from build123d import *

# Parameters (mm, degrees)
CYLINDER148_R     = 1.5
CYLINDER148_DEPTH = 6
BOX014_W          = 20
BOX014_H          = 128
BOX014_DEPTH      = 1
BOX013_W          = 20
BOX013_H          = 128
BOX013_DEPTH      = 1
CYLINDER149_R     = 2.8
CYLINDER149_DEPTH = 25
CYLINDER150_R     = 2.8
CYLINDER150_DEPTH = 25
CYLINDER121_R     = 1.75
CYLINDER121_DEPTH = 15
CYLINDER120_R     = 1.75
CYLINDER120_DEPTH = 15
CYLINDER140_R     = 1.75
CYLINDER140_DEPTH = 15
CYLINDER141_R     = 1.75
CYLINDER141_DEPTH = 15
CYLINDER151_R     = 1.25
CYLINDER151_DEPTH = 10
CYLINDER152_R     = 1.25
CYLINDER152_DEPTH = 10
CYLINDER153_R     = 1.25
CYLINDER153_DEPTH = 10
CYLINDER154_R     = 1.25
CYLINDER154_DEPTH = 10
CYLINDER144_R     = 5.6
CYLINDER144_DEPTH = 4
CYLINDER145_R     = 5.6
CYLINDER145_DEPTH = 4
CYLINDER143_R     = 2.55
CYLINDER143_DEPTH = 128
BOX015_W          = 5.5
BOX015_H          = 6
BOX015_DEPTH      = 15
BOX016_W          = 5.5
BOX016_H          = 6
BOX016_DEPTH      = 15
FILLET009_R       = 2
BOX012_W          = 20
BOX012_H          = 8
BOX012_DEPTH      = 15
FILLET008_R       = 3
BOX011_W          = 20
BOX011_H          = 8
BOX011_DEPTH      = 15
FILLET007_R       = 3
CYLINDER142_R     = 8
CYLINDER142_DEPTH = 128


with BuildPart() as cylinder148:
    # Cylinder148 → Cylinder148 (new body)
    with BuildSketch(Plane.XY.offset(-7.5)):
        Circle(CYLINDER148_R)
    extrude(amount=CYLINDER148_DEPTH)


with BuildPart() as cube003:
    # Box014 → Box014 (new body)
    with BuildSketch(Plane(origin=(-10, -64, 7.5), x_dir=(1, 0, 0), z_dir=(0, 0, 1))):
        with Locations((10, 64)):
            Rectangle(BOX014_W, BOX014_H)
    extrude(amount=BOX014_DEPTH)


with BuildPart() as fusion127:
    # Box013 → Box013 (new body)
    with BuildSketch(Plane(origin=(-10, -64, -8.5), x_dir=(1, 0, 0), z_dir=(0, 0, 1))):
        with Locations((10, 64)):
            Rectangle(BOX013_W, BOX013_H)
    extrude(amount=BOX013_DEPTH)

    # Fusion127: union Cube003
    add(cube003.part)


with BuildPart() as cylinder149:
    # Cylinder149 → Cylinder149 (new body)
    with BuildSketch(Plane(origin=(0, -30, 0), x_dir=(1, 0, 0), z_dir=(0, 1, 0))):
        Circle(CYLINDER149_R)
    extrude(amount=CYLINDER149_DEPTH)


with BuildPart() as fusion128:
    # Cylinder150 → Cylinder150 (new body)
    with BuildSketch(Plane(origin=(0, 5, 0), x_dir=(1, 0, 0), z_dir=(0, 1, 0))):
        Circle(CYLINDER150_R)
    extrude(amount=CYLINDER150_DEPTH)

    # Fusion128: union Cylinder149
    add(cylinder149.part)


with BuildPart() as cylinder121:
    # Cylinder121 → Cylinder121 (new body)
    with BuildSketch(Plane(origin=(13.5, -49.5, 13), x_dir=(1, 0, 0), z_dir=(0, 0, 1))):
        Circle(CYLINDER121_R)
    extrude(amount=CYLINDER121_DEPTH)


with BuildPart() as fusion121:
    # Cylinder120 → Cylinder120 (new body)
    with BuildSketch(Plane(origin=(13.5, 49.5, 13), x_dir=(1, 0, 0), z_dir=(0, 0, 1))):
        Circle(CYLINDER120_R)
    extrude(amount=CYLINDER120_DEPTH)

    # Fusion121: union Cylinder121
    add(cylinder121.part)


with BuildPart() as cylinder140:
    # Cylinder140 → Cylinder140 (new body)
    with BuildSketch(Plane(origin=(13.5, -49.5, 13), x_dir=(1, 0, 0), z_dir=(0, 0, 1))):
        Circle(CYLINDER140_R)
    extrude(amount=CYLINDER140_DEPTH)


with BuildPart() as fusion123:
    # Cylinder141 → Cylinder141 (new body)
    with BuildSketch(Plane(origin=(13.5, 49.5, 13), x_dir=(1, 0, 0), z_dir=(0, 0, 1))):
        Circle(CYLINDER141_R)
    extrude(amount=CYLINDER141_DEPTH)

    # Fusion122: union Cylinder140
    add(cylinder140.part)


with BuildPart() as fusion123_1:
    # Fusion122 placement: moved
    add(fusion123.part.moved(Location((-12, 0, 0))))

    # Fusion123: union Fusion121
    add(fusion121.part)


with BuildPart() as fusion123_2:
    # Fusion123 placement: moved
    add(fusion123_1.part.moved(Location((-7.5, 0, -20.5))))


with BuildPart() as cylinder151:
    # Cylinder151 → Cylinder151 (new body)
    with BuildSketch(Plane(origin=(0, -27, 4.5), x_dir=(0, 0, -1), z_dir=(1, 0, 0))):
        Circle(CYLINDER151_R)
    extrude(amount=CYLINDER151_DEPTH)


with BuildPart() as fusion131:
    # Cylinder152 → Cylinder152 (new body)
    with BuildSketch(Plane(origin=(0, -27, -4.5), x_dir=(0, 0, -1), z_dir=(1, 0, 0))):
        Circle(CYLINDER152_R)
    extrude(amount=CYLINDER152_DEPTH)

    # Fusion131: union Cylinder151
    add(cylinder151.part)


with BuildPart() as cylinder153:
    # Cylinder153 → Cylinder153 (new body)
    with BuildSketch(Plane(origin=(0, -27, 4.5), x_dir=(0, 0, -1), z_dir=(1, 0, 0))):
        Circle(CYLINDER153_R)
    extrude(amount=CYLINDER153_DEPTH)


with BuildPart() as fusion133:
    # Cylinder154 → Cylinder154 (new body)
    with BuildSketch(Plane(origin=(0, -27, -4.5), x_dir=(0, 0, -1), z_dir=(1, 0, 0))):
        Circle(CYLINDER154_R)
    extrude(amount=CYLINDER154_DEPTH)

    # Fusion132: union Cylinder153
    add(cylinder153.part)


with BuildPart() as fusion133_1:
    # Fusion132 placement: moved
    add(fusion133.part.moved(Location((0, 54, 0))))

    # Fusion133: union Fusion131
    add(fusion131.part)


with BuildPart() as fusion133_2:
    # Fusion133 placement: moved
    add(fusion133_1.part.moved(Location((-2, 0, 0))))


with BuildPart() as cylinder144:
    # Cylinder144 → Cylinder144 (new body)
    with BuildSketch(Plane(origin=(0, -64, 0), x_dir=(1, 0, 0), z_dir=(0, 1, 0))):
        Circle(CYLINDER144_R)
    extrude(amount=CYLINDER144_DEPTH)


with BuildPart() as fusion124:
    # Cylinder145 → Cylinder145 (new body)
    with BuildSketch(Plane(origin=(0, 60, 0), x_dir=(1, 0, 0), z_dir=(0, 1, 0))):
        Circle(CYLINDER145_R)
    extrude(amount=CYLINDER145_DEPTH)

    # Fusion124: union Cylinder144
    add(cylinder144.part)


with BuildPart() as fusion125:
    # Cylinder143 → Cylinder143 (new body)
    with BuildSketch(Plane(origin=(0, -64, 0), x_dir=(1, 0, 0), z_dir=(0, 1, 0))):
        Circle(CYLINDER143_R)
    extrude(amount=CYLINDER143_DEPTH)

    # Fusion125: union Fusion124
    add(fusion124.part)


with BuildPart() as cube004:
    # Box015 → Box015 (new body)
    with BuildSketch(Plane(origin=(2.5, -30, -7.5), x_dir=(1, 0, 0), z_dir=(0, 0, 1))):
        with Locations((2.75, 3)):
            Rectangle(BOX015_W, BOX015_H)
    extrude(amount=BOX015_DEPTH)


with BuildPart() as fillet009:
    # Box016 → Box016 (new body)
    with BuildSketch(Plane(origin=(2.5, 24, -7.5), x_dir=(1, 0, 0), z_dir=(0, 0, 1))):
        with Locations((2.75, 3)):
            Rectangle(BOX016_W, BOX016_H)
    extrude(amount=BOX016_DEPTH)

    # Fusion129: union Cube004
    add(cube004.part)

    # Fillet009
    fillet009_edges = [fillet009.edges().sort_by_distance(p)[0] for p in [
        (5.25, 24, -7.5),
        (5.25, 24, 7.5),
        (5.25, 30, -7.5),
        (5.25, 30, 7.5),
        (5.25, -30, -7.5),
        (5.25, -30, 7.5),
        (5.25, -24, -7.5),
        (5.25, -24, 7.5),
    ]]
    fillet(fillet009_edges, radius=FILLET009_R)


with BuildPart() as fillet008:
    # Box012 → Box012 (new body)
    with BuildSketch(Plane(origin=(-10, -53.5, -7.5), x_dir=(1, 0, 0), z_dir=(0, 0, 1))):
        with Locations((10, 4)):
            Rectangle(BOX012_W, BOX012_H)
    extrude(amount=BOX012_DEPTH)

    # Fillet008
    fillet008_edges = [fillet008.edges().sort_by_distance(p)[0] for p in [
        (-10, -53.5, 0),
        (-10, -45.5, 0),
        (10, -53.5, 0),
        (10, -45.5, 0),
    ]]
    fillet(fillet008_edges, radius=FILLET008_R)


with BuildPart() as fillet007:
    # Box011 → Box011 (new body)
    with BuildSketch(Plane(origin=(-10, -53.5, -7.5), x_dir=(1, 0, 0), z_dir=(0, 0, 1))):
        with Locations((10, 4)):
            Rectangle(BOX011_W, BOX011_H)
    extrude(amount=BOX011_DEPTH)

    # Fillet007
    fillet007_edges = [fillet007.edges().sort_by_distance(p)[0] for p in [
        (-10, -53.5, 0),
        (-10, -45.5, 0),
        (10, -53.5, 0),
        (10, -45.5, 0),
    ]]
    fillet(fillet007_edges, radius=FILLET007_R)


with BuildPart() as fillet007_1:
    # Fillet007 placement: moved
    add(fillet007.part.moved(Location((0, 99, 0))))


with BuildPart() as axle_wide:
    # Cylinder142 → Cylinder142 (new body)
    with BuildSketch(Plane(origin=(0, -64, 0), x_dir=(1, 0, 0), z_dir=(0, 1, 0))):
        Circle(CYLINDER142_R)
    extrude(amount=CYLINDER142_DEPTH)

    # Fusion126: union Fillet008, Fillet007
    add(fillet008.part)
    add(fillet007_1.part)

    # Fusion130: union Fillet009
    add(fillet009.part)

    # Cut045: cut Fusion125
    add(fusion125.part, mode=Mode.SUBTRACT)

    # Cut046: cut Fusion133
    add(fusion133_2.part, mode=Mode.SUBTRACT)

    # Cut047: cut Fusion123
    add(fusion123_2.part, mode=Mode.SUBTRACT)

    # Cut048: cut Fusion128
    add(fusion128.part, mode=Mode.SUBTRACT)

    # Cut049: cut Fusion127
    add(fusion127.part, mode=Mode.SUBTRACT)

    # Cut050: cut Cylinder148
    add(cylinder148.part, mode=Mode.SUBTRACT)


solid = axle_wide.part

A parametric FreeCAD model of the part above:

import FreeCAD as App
import Part
import Sketcher


def edges_at(feature, points):
    """Names of the edges that pass closest to the given points."""
    edges = feature.Shape.Edges
    near = lambda p: min(range(len(edges)), key=lambda i: edges[i].distToShape(Part.Vertex(*p))[0])
    return sorted({f"Edge{near(p) + 1}" for p in points})

doc = App.newDocument("Part")
body = doc.addObject("PartDesign::Body", "Body")

# Sketch on XY plane
sketch1 = doc.addObject("Sketcher::SketchObject", "Sketch")
body.addObject(sketch1)
sketch1.AttachmentSupport = (doc.XY_Plane, [""])
sketch1.MapMode = "FlatFace"
sketch1.AttachmentOffset = App.Placement(App.Vector(0, 0, -7.5), App.Rotation())
sketch1.addGeometry(Part.Circle(App.Vector(0, 0, 0), App.Vector(0, 0, 1), 1.5), False)
sketch1.addConstraint(Sketcher.Constraint("Coincident", 0, 3, -1, 1))
sketch1.addConstraint(Sketcher.Constraint("Diameter", 0, 3.0))
pad1 = doc.addObject("PartDesign::Pad", "Pad")
body.addObject(pad1)
pad1.Profile = sketch1
pad1.Length = 6
body2 = doc.addObject("PartDesign::Body", "Body001")

# Sketch on XY plane
sketch2 = doc.addObject("Sketcher::SketchObject", "Sketch001")
body2.addObject(sketch2)
sketch2.AttachmentSupport = (doc.getObject("XY_Plane001"), [""])
sketch2.MapMode = "FlatFace"
sketch2.AttachmentOffset = App.Placement(App.Vector(0, 0, 7.5), App.Rotation())
sketch2.addGeometry(Part.LineSegment(App.Vector(-10, 64, 0), App.Vector(-10, -64, 0)), False)
sketch2.addGeometry(Part.LineSegment(App.Vector(-10, -64, 0), App.Vector(10, -64, 0)), False)
sketch2.addGeometry(Part.LineSegment(App.Vector(10, -64, 0), App.Vector(10, 64, 0)), False)
sketch2.addGeometry(Part.LineSegment(App.Vector(10, 64, 0), App.Vector(-10, 64, 0)), False)
sketch2.addConstraint(Sketcher.Constraint("Coincident", 0, 2, 1, 1))
sketch2.addConstraint(Sketcher.Constraint("Coincident", 1, 2, 2, 1))
sketch2.addConstraint(Sketcher.Constraint("Coincident", 2, 2, 3, 1))
sketch2.addConstraint(Sketcher.Constraint("Coincident", 3, 2, 0, 1))
sketch2.addConstraint(Sketcher.Constraint("Vertical", 0))
sketch2.addConstraint(Sketcher.Constraint("Horizontal", 1))
sketch2.addConstraint(Sketcher.Constraint("Vertical", 2))
sketch2.addConstraint(Sketcher.Constraint("Horizontal", 3))
sketch2.addConstraint(Sketcher.Constraint("Symmetric", 0, 2, 2, 2, -1, 1))
sketch2.addConstraint(Sketcher.Constraint("DistanceX", 1, 1, 1, 2, 20.0))
sketch2.addConstraint(Sketcher.Constraint("DistanceY", 0, 2, 0, 1, 128.0))
pad2 = doc.addObject("PartDesign::Pad", "Pad001")
body2.addObject(pad2)
pad2.Profile = sketch2
pad2.Length = 1
body3 = doc.addObject("PartDesign::Body", "Body002")
body3.AllowCompound = True

# Sketch on XY plane
sketch3 = doc.addObject("Sketcher::SketchObject", "Sketch002")
body3.addObject(sketch3)
sketch3.AttachmentSupport = (doc.getObject("XY_Plane002"), [""])
sketch3.MapMode = "FlatFace"
sketch3.AttachmentOffset = App.Placement(App.Vector(0, 0, -8.5), App.Rotation())
sketch3.addGeometry(Part.LineSegment(App.Vector(-10, 64, 0), App.Vector(-10, -64, 0)), False)
sketch3.addGeometry(Part.LineSegment(App.Vector(-10, -64, 0), App.Vector(10, -64, 0)), False)
sketch3.addGeometry(Part.LineSegment(App.Vector(10, -64, 0), App.Vector(10, 64, 0)), False)
sketch3.addGeometry(Part.LineSegment(App.Vector(10, 64, 0), App.Vector(-10, 64, 0)), False)
sketch3.addConstraint(Sketcher.Constraint("Coincident", 0, 2, 1, 1))
sketch3.addConstraint(Sketcher.Constraint("Coincident", 1, 2, 2, 1))
sketch3.addConstraint(Sketcher.Constraint("Coincident", 2, 2, 3, 1))
sketch3.addConstraint(Sketcher.Constraint("Coincident", 3, 2, 0, 1))
sketch3.addConstraint(Sketcher.Constraint("Vertical", 0))
sketch3.addConstraint(Sketcher.Constraint("Horizontal", 1))
sketch3.addConstraint(Sketcher.Constraint("Vertical", 2))
sketch3.addConstraint(Sketcher.Constraint("Horizontal", 3))
sketch3.addConstraint(Sketcher.Constraint("Symmetric", 0, 2, 2, 2, -1, 1))
sketch3.addConstraint(Sketcher.Constraint("DistanceX", 1, 1, 1, 2, 20.0))
sketch3.addConstraint(Sketcher.Constraint("DistanceY", 0, 2, 0, 1, 128.0))
pad3 = doc.addObject("PartDesign::Pad", "Pad002")
body3.addObject(pad3)
pad3.Profile = sketch3
pad3.Length = 1
doc.recompute()

boolean = doc.addObject("PartDesign::Boolean", "Boolean")
body3.addObject(boolean)
boolean.Type = "Fuse"
boolean.addObjects([body2])
body4 = doc.addObject("PartDesign::Body", "Body003")

# Sketch on XZ plane
sketch4 = doc.addObject("Sketcher::SketchObject", "Sketch003")
body4.addObject(sketch4)
sketch4.AttachmentSupport = (doc.getObject("XZ_Plane003"), [""])
sketch4.MapMode = "FlatFace"
sketch4.AttachmentOffset = App.Placement(App.Vector(0, 0, 30), App.Rotation())
sketch4.addGeometry(Part.Circle(App.Vector(0, 0, 0), App.Vector(0, 0, 1), 2.8), False)
sketch4.addConstraint(Sketcher.Constraint("Coincident", 0, 3, -1, 1))
sketch4.addConstraint(Sketcher.Constraint("Diameter", 0, 5.6))
pad4 = doc.addObject("PartDesign::Pad", "Pad003")
body4.addObject(pad4)
pad4.Profile = sketch4
pad4.Length = 25
pad4.Reversed = True
body5 = doc.addObject("PartDesign::Body", "Body004")
body5.AllowCompound = True

# Sketch on XZ plane
sketch5 = doc.addObject("Sketcher::SketchObject", "Sketch004")
body5.addObject(sketch5)
sketch5.AttachmentSupport = (doc.getObject("XZ_Plane004"), [""])
sketch5.MapMode = "FlatFace"
sketch5.AttachmentOffset = App.Placement(App.Vector(0, 0, -5), App.Rotation())
sketch5.addGeometry(Part.Circle(App.Vector(0, 0, 0), App.Vector(0, 0, 1), 2.8), False)
sketch5.addConstraint(Sketcher.Constraint("Coincident", 0, 3, -1, 1))
sketch5.addConstraint(Sketcher.Constraint("Diameter", 0, 5.6))
pad5 = doc.addObject("PartDesign::Pad", "Pad004")
body5.addObject(pad5)
pad5.Profile = sketch5
pad5.Length = 25
pad5.Reversed = True
doc.recompute()

boolean2 = doc.addObject("PartDesign::Boolean", "Boolean001")
body5.addObject(boolean2)
boolean2.Type = "Fuse"
boolean2.addObjects([body4])
body6 = doc.addObject("PartDesign::Body", "Body005")

# Sketch on XY plane
sketch6 = doc.addObject("Sketcher::SketchObject", "Sketch005")
body6.addObject(sketch6)
sketch6.AttachmentSupport = (doc.getObject("XY_Plane005"), [""])
sketch6.MapMode = "FlatFace"
sketch6.AttachmentOffset = App.Placement(App.Vector(0, 0, 13), App.Rotation())
sketch6.addGeometry(Part.Circle(App.Vector(13.5, -49.5, 0), App.Vector(0, 0, 1), 1.75), False)
sketch6.addConstraint(Sketcher.Constraint("Diameter", 0, 3.5))
sketch6.addConstraint(Sketcher.Constraint("DistanceX", -1, 1, 0, 3, 13.5))
sketch6.addConstraint(Sketcher.Constraint("DistanceY", 0, 3, -1, 1, 49.5))
pad6 = doc.addObject("PartDesign::Pad", "Pad005")
body6.addObject(pad6)
pad6.Profile = sketch6
pad6.Length = 15
body7 = doc.addObject("PartDesign::Body", "Body006")
body7.AllowCompound = True

# Sketch on XY plane
sketch7 = doc.addObject("Sketcher::SketchObject", "Sketch006")
body7.addObject(sketch7)
sketch7.AttachmentSupport = (doc.getObject("XY_Plane006"), [""])
sketch7.MapMode = "FlatFace"
sketch7.AttachmentOffset = App.Placement(App.Vector(0, 0, 13), App.Rotation())
sketch7.addGeometry(Part.Circle(App.Vector(13.5, 49.5, 0), App.Vector(0, 0, 1), 1.75), False)
sketch7.addConstraint(Sketcher.Constraint("Diameter", 0, 3.5))
sketch7.addConstraint(Sketcher.Constraint("DistanceX", -1, 1, 0, 3, 13.5))
sketch7.addConstraint(Sketcher.Constraint("DistanceY", -1, 1, 0, 3, 49.5))
pad7 = doc.addObject("PartDesign::Pad", "Pad006")
body7.addObject(pad7)
pad7.Profile = sketch7
pad7.Length = 15
doc.recompute()

boolean3 = doc.addObject("PartDesign::Boolean", "Boolean002")
body7.addObject(boolean3)
boolean3.Type = "Fuse"
boolean3.addObjects([body6])
body8 = doc.addObject("PartDesign::Body", "Body007")

# Sketch on XY plane
sketch8 = doc.addObject("Sketcher::SketchObject", "Sketch007")
body8.addObject(sketch8)
sketch8.AttachmentSupport = (doc.getObject("XY_Plane007"), [""])
sketch8.MapMode = "FlatFace"
sketch8.AttachmentOffset = App.Placement(App.Vector(0, 0, 13), App.Rotation())
sketch8.addGeometry(Part.Circle(App.Vector(13.5, -49.5, 0), App.Vector(0, 0, 1), 1.75), False)
sketch8.addConstraint(Sketcher.Constraint("Diameter", 0, 3.5))
sketch8.addConstraint(Sketcher.Constraint("DistanceX", -1, 1, 0, 3, 13.5))
sketch8.addConstraint(Sketcher.Constraint("DistanceY", 0, 3, -1, 1, 49.5))
pad8 = doc.addObject("PartDesign::Pad", "Pad007")
body8.addObject(pad8)
pad8.Profile = sketch8
pad8.Length = 15
body9 = doc.addObject("PartDesign::Body", "Body008")
body9.AllowCompound = True

# Sketch on XY plane
sketch9 = doc.addObject("Sketcher::SketchObject", "Sketch008")
body9.addObject(sketch9)
sketch9.AttachmentSupport = (doc.getObject("XY_Plane008"), [""])
sketch9.MapMode = "FlatFace"
sketch9.AttachmentOffset = App.Placement(App.Vector(0, 0, 13), App.Rotation())
sketch9.addGeometry(Part.Circle(App.Vector(13.5, 49.5, 0), App.Vector(0, 0, 1), 1.75), False)
sketch9.addConstraint(Sketcher.Constraint("Diameter", 0, 3.5))
sketch9.addConstraint(Sketcher.Constraint("DistanceX", -1, 1, 0, 3, 13.5))
sketch9.addConstraint(Sketcher.Constraint("DistanceY", -1, 1, 0, 3, 49.5))
pad9 = doc.addObject("PartDesign::Pad", "Pad008")
body9.addObject(pad9)
pad9.Profile = sketch9
pad9.Length = 15
doc.recompute()

boolean4 = doc.addObject("PartDesign::Boolean", "Boolean003")
body9.addObject(boolean4)
boolean4.Type = "Fuse"
boolean4.addObjects([body8])
body10 = doc.addObject("PartDesign::Body", "Body009")
body10.AllowCompound = True
doc.recompute()

body9.Placement = App.Placement(App.Vector(-12, 0, 0), App.Rotation(App.Vector(0, 0, 1), 0))
boolean5 = doc.addObject("PartDesign::Boolean", "Boolean004")
body10.addObject(boolean5)
boolean5.Type = "Fuse"
boolean5.addObjects([body9])
doc.recompute()

boolean6 = doc.addObject("PartDesign::Boolean", "Boolean005")
body10.addObject(boolean6)
boolean6.Type = "Fuse"
boolean6.addObjects([body7])
body11 = doc.addObject("PartDesign::Body", "Body010")
body11.AllowCompound = True
doc.recompute()

body10.Placement = App.Placement(App.Vector(-7.5, 0, -20.5), App.Rotation(App.Vector(0, 0, 1), 0))
boolean7 = doc.addObject("PartDesign::Boolean", "Boolean006")
body11.addObject(boolean7)
boolean7.Type = "Fuse"
boolean7.addObjects([body10])
body12 = doc.addObject("PartDesign::Body", "Body011")

# Sketch on YZ plane
sketch10 = doc.addObject("Sketcher::SketchObject", "Sketch009")
body12.addObject(sketch10)
sketch10.AttachmentSupport = (doc.getObject("YZ_Plane011"), [""])
sketch10.MapMode = "FlatFace"
sketch10.addGeometry(Part.Circle(App.Vector(-27, 4.5, 0), App.Vector(0, 0, 1), 1.25), False)
sketch10.addConstraint(Sketcher.Constraint("Diameter", 0, 2.5))
sketch10.addConstraint(Sketcher.Constraint("DistanceX", 0, 3, -1, 1, 27.0))
sketch10.addConstraint(Sketcher.Constraint("DistanceY", -1, 1, 0, 3, 4.5))
pad10 = doc.addObject("PartDesign::Pad", "Pad009")
body12.addObject(pad10)
pad10.Profile = sketch10
pad10.Length = 10
body13 = doc.addObject("PartDesign::Body", "Body012")
body13.AllowCompound = True

# Sketch on YZ plane
sketch11 = doc.addObject("Sketcher::SketchObject", "Sketch010")
body13.addObject(sketch11)
sketch11.AttachmentSupport = (doc.getObject("YZ_Plane012"), [""])
sketch11.MapMode = "FlatFace"
sketch11.addGeometry(Part.Circle(App.Vector(-27, -4.5, 0), App.Vector(0, 0, 1), 1.25), False)
sketch11.addConstraint(Sketcher.Constraint("Diameter", 0, 2.5))
sketch11.addConstraint(Sketcher.Constraint("DistanceX", 0, 3, -1, 1, 27.0))
sketch11.addConstraint(Sketcher.Constraint("DistanceY", 0, 3, -1, 1, 4.5))
pad11 = doc.addObject("PartDesign::Pad", "Pad010")
body13.addObject(pad11)
pad11.Profile = sketch11
pad11.Length = 10
doc.recompute()

boolean8 = doc.addObject("PartDesign::Boolean", "Boolean007")
body13.addObject(boolean8)
boolean8.Type = "Fuse"
boolean8.addObjects([body12])
body14 = doc.addObject("PartDesign::Body", "Body013")

# Sketch on YZ plane
sketch12 = doc.addObject("Sketcher::SketchObject", "Sketch011")
body14.addObject(sketch12)
sketch12.AttachmentSupport = (doc.getObject("YZ_Plane013"), [""])
sketch12.MapMode = "FlatFace"
sketch12.addGeometry(Part.Circle(App.Vector(-27, 4.5, 0), App.Vector(0, 0, 1), 1.25), False)
sketch12.addConstraint(Sketcher.Constraint("Diameter", 0, 2.5))
sketch12.addConstraint(Sketcher.Constraint("DistanceX", 0, 3, -1, 1, 27.0))
sketch12.addConstraint(Sketcher.Constraint("DistanceY", -1, 1, 0, 3, 4.5))
pad12 = doc.addObject("PartDesign::Pad", "Pad011")
body14.addObject(pad12)
pad12.Profile = sketch12
pad12.Length = 10
body15 = doc.addObject("PartDesign::Body", "Body014")
body15.AllowCompound = True

# Sketch on YZ plane
sketch13 = doc.addObject("Sketcher::SketchObject", "Sketch012")
body15.addObject(sketch13)
sketch13.AttachmentSupport = (doc.getObject("YZ_Plane014"), [""])
sketch13.MapMode = "FlatFace"
sketch13.addGeometry(Part.Circle(App.Vector(-27, -4.5, 0), App.Vector(0, 0, 1), 1.25), False)
sketch13.addConstraint(Sketcher.Constraint("Diameter", 0, 2.5))
sketch13.addConstraint(Sketcher.Constraint("DistanceX", 0, 3, -1, 1, 27.0))
sketch13.addConstraint(Sketcher.Constraint("DistanceY", 0, 3, -1, 1, 4.5))
pad13 = doc.addObject("PartDesign::Pad", "Pad012")
body15.addObject(pad13)
pad13.Profile = sketch13
pad13.Length = 10
doc.recompute()

boolean9 = doc.addObject("PartDesign::Boolean", "Boolean008")
body15.addObject(boolean9)
boolean9.Type = "Fuse"
boolean9.addObjects([body14])
body16 = doc.addObject("PartDesign::Body", "Body015")
body16.AllowCompound = True
doc.recompute()

body15.Placement = App.Placement(App.Vector(0, 54, 0), App.Rotation(App.Vector(0, 0, 1), 0))
boolean10 = doc.addObject("PartDesign::Boolean", "Boolean009")
body16.addObject(boolean10)
boolean10.Type = "Fuse"
boolean10.addObjects([body15])
doc.recompute()

boolean11 = doc.addObject("PartDesign::Boolean", "Boolean010")
body16.addObject(boolean11)
boolean11.Type = "Fuse"
boolean11.addObjects([body13])
body17 = doc.addObject("PartDesign::Body", "Body016")
body17.AllowCompound = True
doc.recompute()

body16.Placement = App.Placement(App.Vector(-2, 0, 0), App.Rotation(App.Vector(0, 0, 1), 0))
boolean12 = doc.addObject("PartDesign::Boolean", "Boolean011")
body17.addObject(boolean12)
boolean12.Type = "Fuse"
boolean12.addObjects([body16])
body18 = doc.addObject("PartDesign::Body", "Body017")

# Sketch on XZ plane
sketch14 = doc.addObject("Sketcher::SketchObject", "Sketch013")
body18.addObject(sketch14)
sketch14.AttachmentSupport = (doc.getObject("XZ_Plane017"), [""])
sketch14.MapMode = "FlatFace"
sketch14.AttachmentOffset = App.Placement(App.Vector(0, 0, 64), App.Rotation())
sketch14.addGeometry(Part.Circle(App.Vector(0, 0, 0), App.Vector(0, 0, 1), 5.6), False)
sketch14.addConstraint(Sketcher.Constraint("Coincident", 0, 3, -1, 1))
sketch14.addConstraint(Sketcher.Constraint("Diameter", 0, 11.2))
pad14 = doc.addObject("PartDesign::Pad", "Pad013")
body18.addObject(pad14)
pad14.Profile = sketch14
pad14.Length = 4
pad14.Reversed = True
body19 = doc.addObject("PartDesign::Body", "Body018")
body19.AllowCompound = True

# Sketch on XZ plane
sketch15 = doc.addObject("Sketcher::SketchObject", "Sketch014")
body19.addObject(sketch15)
sketch15.AttachmentSupport = (doc.getObject("XZ_Plane018"), [""])
sketch15.MapMode = "FlatFace"
sketch15.AttachmentOffset = App.Placement(App.Vector(0, 0, -60), App.Rotation())
sketch15.addGeometry(Part.Circle(App.Vector(0, 0, 0), App.Vector(0, 0, 1), 5.6), False)
sketch15.addConstraint(Sketcher.Constraint("Coincident", 0, 3, -1, 1))
sketch15.addConstraint(Sketcher.Constraint("Diameter", 0, 11.2))
pad15 = doc.addObject("PartDesign::Pad", "Pad014")
body19.addObject(pad15)
pad15.Profile = sketch15
pad15.Length = 4
pad15.Reversed = True
doc.recompute()

boolean13 = doc.addObject("PartDesign::Boolean", "Boolean012")
body19.addObject(boolean13)
boolean13.Type = "Fuse"
boolean13.addObjects([body18])
body20 = doc.addObject("PartDesign::Body", "Body019")

# Sketch on XZ plane
sketch16 = doc.addObject("Sketcher::SketchObject", "Sketch015")
body20.addObject(sketch16)
sketch16.AttachmentSupport = (doc.getObject("XZ_Plane019"), [""])
sketch16.MapMode = "FlatFace"
sketch16.AttachmentOffset = App.Placement(App.Vector(0, 0, 64), App.Rotation())
sketch16.addGeometry(Part.Circle(App.Vector(0, 0, 0), App.Vector(0, 0, 1), 2.55), False)
sketch16.addConstraint(Sketcher.Constraint("Coincident", 0, 3, -1, 1))
sketch16.addConstraint(Sketcher.Constraint("Diameter", 0, 5.1))
pad16 = doc.addObject("PartDesign::Pad", "Pad015")
body20.addObject(pad16)
pad16.Profile = sketch16
pad16.Length = 128
pad16.Reversed = True
doc.recompute()

boolean14 = doc.addObject("PartDesign::Boolean", "Boolean013")
body20.addObject(boolean14)
boolean14.Type = "Fuse"
boolean14.addObjects([body19])
body21 = doc.addObject("PartDesign::Body", "Body020")

# Sketch on XY plane
sketch17 = doc.addObject("Sketcher::SketchObject", "Sketch016")
body21.addObject(sketch17)
sketch17.AttachmentSupport = (doc.getObject("XY_Plane020"), [""])
sketch17.MapMode = "FlatFace"
sketch17.AttachmentOffset = App.Placement(App.Vector(0, 0, -7.5), App.Rotation())
sketch17.addGeometry(Part.LineSegment(App.Vector(2.5, -24, 0), App.Vector(2.5, -30, 0)), False)
sketch17.addGeometry(Part.LineSegment(App.Vector(2.5, -30, 0), App.Vector(8, -30, 0)), False)
sketch17.addGeometry(Part.LineSegment(App.Vector(8, -30, 0), App.Vector(8, -24, 0)), False)
sketch17.addGeometry(Part.LineSegment(App.Vector(8, -24, 0), App.Vector(2.5, -24, 0)), False)
sketch17.addConstraint(Sketcher.Constraint("Coincident", 0, 2, 1, 1))
sketch17.addConstraint(Sketcher.Constraint("Coincident", 1, 2, 2, 1))
sketch17.addConstraint(Sketcher.Constraint("Coincident", 2, 2, 3, 1))
sketch17.addConstraint(Sketcher.Constraint("Coincident", 3, 2, 0, 1))
sketch17.addConstraint(Sketcher.Constraint("Vertical", 0))
sketch17.addConstraint(Sketcher.Constraint("Horizontal", 1))
sketch17.addConstraint(Sketcher.Constraint("Vertical", 2))
sketch17.addConstraint(Sketcher.Constraint("Horizontal", 3))
sketch17.addConstraint(Sketcher.Constraint("DistanceY", 0, 2, 0, 1, 6.0))
sketch17.addConstraint(Sketcher.Constraint("DistanceX", 1, 1, 1, 2, 5.5))
sketch17.addConstraint(Sketcher.Constraint("DistanceY", 0, 2, -1, 1, 30.0))
sketch17.addConstraint(Sketcher.Constraint("DistanceX", -1, 1, 1, 2, 8.0))
pad17 = doc.addObject("PartDesign::Pad", "Pad016")
body21.addObject(pad17)
pad17.Profile = sketch17
pad17.Length = 15
body22 = doc.addObject("PartDesign::Body", "Body021")
body22.AllowCompound = True

# Sketch on XY plane
sketch18 = doc.addObject("Sketcher::SketchObject", "Sketch017")
body22.addObject(sketch18)
sketch18.AttachmentSupport = (doc.getObject("XY_Plane021"), [""])
sketch18.MapMode = "FlatFace"
sketch18.AttachmentOffset = App.Placement(App.Vector(0, 0, -7.5), App.Rotation())
sketch18.addGeometry(Part.LineSegment(App.Vector(2.5, 30, 0), App.Vector(2.5, 24, 0)), False)
sketch18.addGeometry(Part.LineSegment(App.Vector(2.5, 24, 0), App.Vector(8, 24, 0)), False)
sketch18.addGeometry(Part.LineSegment(App.Vector(8, 24, 0), App.Vector(8, 30, 0)), False)
sketch18.addGeometry(Part.LineSegment(App.Vector(8, 30, 0), App.Vector(2.5, 30, 0)), False)
sketch18.addConstraint(Sketcher.Constraint("Coincident", 0, 2, 1, 1))
sketch18.addConstraint(Sketcher.Constraint("Coincident", 1, 2, 2, 1))
sketch18.addConstraint(Sketcher.Constraint("Coincident", 2, 2, 3, 1))
sketch18.addConstraint(Sketcher.Constraint("Coincident", 3, 2, 0, 1))
sketch18.addConstraint(Sketcher.Constraint("Vertical", 0))
sketch18.addConstraint(Sketcher.Constraint("Horizontal", 1))
sketch18.addConstraint(Sketcher.Constraint("Vertical", 2))
sketch18.addConstraint(Sketcher.Constraint("Horizontal", 3))
sketch18.addConstraint(Sketcher.Constraint("DistanceY", 0, 2, 0, 1, 6.0))
sketch18.addConstraint(Sketcher.Constraint("DistanceX", 1, 1, 1, 2, 5.5))
sketch18.addConstraint(Sketcher.Constraint("DistanceY", -1, 1, 0, 2, 24.0))
sketch18.addConstraint(Sketcher.Constraint("DistanceX", -1, 1, 1, 2, 8.0))
pad18 = doc.addObject("PartDesign::Pad", "Pad017")
body22.addObject(pad18)
pad18.Profile = sketch18
pad18.Length = 15
doc.recompute()

boolean15 = doc.addObject("PartDesign::Boolean", "Boolean014")
body22.addObject(boolean15)
boolean15.Type = "Fuse"
boolean15.addObjects([body21])
doc.recompute()

fillet = doc.addObject("PartDesign::Fillet", "Fillet")
body22.addObject(fillet)
fillet.Base = (boolean15, edges_at(boolean15, [
    (5.25, 24, -7.5),
    (5.25, 24, 7.5),
    (5.25, 30, -7.5),
    (5.25, 30, 7.5),
    (5.25, -30, -7.5),
    (5.25, -30, 7.5),
    (5.25, -24, -7.5),
    (5.25, -24, 7.5),
]))
fillet.Radius = 2
body23 = doc.addObject("PartDesign::Body", "Body022")

# Sketch on XY plane
sketch19 = doc.addObject("Sketcher::SketchObject", "Sketch018")
body23.addObject(sketch19)
sketch19.AttachmentSupport = (doc.getObject("XY_Plane022"), [""])
sketch19.MapMode = "FlatFace"
sketch19.AttachmentOffset = App.Placement(App.Vector(0, 0, -7.5), App.Rotation())
sketch19.addGeometry(Part.LineSegment(App.Vector(-10, -45.5, 0), App.Vector(-10, -53.5, 0)), False)
sketch19.addGeometry(Part.LineSegment(App.Vector(-10, -53.5, 0), App.Vector(10, -53.5, 0)), False)
sketch19.addGeometry(Part.LineSegment(App.Vector(10, -53.5, 0), App.Vector(10, -45.5, 0)), False)
sketch19.addGeometry(Part.LineSegment(App.Vector(10, -45.5, 0), App.Vector(-10, -45.5, 0)), False)
sketch19.addConstraint(Sketcher.Constraint("Coincident", 0, 2, 1, 1))
sketch19.addConstraint(Sketcher.Constraint("Coincident", 1, 2, 2, 1))
sketch19.addConstraint(Sketcher.Constraint("Coincident", 2, 2, 3, 1))
sketch19.addConstraint(Sketcher.Constraint("Coincident", 3, 2, 0, 1))
sketch19.addConstraint(Sketcher.Constraint("Vertical", 0))
sketch19.addConstraint(Sketcher.Constraint("Horizontal", 1))
sketch19.addConstraint(Sketcher.Constraint("Vertical", 2))
sketch19.addConstraint(Sketcher.Constraint("Horizontal", 3))
sketch19.addConstraint(Sketcher.Constraint("DistanceX", 1, 1, 1, 2, 20.0))
sketch19.addConstraint(Sketcher.Constraint("DistanceY", 0, 2, 0, 1, 8.0))
sketch19.addConstraint(Sketcher.Constraint("DistanceX", 0, 2, -1, 1, 10.0))
sketch19.addConstraint(Sketcher.Constraint("DistanceY", 0, 2, -1, 1, 53.5))
pad19 = doc.addObject("PartDesign::Pad", "Pad018")
body23.addObject(pad19)
pad19.Profile = sketch19
pad19.Length = 15
doc.recompute()

fillet2 = doc.addObject("PartDesign::Fillet", "Fillet001")
body23.addObject(fillet2)
fillet2.Base = (pad19, edges_at(pad19, [
    (-10, -53.5, 0),
    (-10, -45.5, 0),
    (10, -53.5, 0),
    (10, -45.5, 0),
]))
fillet2.Radius = 3
body24 = doc.addObject("PartDesign::Body", "Body023")

# Sketch on XY plane
sketch20 = doc.addObject("Sketcher::SketchObject", "Sketch019")
body24.addObject(sketch20)
sketch20.AttachmentSupport = (doc.getObject("XY_Plane023"), [""])
sketch20.MapMode = "FlatFace"
sketch20.AttachmentOffset = App.Placement(App.Vector(0, 0, -7.5), App.Rotation())
sketch20.addGeometry(Part.LineSegment(App.Vector(-10, -45.5, 0), App.Vector(-10, -53.5, 0)), False)
sketch20.addGeometry(Part.LineSegment(App.Vector(-10, -53.5, 0), App.Vector(10, -53.5, 0)), False)
sketch20.addGeometry(Part.LineSegment(App.Vector(10, -53.5, 0), App.Vector(10, -45.5, 0)), False)
sketch20.addGeometry(Part.LineSegment(App.Vector(10, -45.5, 0), App.Vector(-10, -45.5, 0)), False)
sketch20.addConstraint(Sketcher.Constraint("Coincident", 0, 2, 1, 1))
sketch20.addConstraint(Sketcher.Constraint("Coincident", 1, 2, 2, 1))
sketch20.addConstraint(Sketcher.Constraint("Coincident", 2, 2, 3, 1))
sketch20.addConstraint(Sketcher.Constraint("Coincident", 3, 2, 0, 1))
sketch20.addConstraint(Sketcher.Constraint("Vertical", 0))
sketch20.addConstraint(Sketcher.Constraint("Horizontal", 1))
sketch20.addConstraint(Sketcher.Constraint("Vertical", 2))
sketch20.addConstraint(Sketcher.Constraint("Horizontal", 3))
sketch20.addConstraint(Sketcher.Constraint("DistanceX", 1, 1, 1, 2, 20.0))
sketch20.addConstraint(Sketcher.Constraint("DistanceY", 0, 2, 0, 1, 8.0))
sketch20.addConstraint(Sketcher.Constraint("DistanceX", 0, 2, -1, 1, 10.0))
sketch20.addConstraint(Sketcher.Constraint("DistanceY", 0, 2, -1, 1, 53.5))
pad20 = doc.addObject("PartDesign::Pad", "Pad019")
body24.addObject(pad20)
pad20.Profile = sketch20
pad20.Length = 15
doc.recompute()

fillet3 = doc.addObject("PartDesign::Fillet", "Fillet002")
body24.addObject(fillet3)
fillet3.Base = (pad20, edges_at(pad20, [
    (-10, -53.5, 0),
    (-10, -45.5, 0),
    (10, -53.5, 0),
    (10, -45.5, 0),
]))
fillet3.Radius = 3
body25 = doc.addObject("PartDesign::Body", "Body024")
doc.recompute()

body24.Placement = App.Placement(App.Vector(0, 99, 0), App.Rotation(App.Vector(0, 0, 1), 0))
boolean16 = doc.addObject("PartDesign::Boolean", "Boolean015")
body25.addObject(boolean16)
boolean16.Type = "Fuse"
boolean16.addObjects([body24])
body26 = doc.addObject("PartDesign::Body", "Body025")

# Sketch on XZ plane
sketch21 = doc.addObject("Sketcher::SketchObject", "Sketch020")
body26.addObject(sketch21)
sketch21.AttachmentSupport = (doc.getObject("XZ_Plane025"), [""])
sketch21.MapMode = "FlatFace"
sketch21.AttachmentOffset = App.Placement(App.Vector(0, 0, 64), App.Rotation())
sketch21.addGeometry(Part.Circle(App.Vector(0, 0, 0), App.Vector(0, 0, 1), 8), False)
sketch21.addConstraint(Sketcher.Constraint("Coincident", 0, 3, -1, 1))
sketch21.addConstraint(Sketcher.Constraint("Diameter", 0, 16.0))
pad21 = doc.addObject("PartDesign::Pad", "Pad020")
body26.addObject(pad21)
pad21.Profile = sketch21
pad21.Length = 128
pad21.Reversed = True
doc.recompute()

boolean17 = doc.addObject("PartDesign::Boolean", "Boolean016")
body26.addObject(boolean17)
boolean17.Type = "Fuse"
boolean17.addObjects([body23])
doc.recompute()

boolean18 = doc.addObject("PartDesign::Boolean", "Boolean017")
body26.addObject(boolean18)
boolean18.Type = "Fuse"
boolean18.addObjects([body25])
doc.recompute()

boolean19 = doc.addObject("PartDesign::Boolean", "Boolean018")
body26.addObject(boolean19)
boolean19.Type = "Fuse"
boolean19.addObjects([body22])
doc.recompute()

boolean20 = doc.addObject("PartDesign::Boolean", "Boolean019")
body26.addObject(boolean20)
boolean20.Type = "Cut"
boolean20.addObjects([body20])
doc.recompute()

boolean21 = doc.addObject("PartDesign::Boolean", "Boolean020")
body26.addObject(boolean21)
boolean21.Type = "Cut"
boolean21.addObjects([body17])
doc.recompute()

boolean22 = doc.addObject("PartDesign::Boolean", "Boolean021")
body26.addObject(boolean22)
boolean22.Type = "Cut"
boolean22.addObjects([body11])
doc.recompute()

boolean23 = doc.addObject("PartDesign::Boolean", "Boolean022")
body26.addObject(boolean23)
boolean23.Type = "Cut"
boolean23.addObjects([body5])
doc.recompute()

boolean24 = doc.addObject("PartDesign::Boolean", "Boolean023")
body26.addObject(boolean24)
boolean24.Type = "Cut"
boolean24.addObjects([body3])
doc.recompute()

boolean25 = doc.addObject("PartDesign::Boolean", "Boolean024")
body26.addObject(boolean25)
boolean25.Type = "Cut"
boolean25.addObjects([body])

doc.recompute()
